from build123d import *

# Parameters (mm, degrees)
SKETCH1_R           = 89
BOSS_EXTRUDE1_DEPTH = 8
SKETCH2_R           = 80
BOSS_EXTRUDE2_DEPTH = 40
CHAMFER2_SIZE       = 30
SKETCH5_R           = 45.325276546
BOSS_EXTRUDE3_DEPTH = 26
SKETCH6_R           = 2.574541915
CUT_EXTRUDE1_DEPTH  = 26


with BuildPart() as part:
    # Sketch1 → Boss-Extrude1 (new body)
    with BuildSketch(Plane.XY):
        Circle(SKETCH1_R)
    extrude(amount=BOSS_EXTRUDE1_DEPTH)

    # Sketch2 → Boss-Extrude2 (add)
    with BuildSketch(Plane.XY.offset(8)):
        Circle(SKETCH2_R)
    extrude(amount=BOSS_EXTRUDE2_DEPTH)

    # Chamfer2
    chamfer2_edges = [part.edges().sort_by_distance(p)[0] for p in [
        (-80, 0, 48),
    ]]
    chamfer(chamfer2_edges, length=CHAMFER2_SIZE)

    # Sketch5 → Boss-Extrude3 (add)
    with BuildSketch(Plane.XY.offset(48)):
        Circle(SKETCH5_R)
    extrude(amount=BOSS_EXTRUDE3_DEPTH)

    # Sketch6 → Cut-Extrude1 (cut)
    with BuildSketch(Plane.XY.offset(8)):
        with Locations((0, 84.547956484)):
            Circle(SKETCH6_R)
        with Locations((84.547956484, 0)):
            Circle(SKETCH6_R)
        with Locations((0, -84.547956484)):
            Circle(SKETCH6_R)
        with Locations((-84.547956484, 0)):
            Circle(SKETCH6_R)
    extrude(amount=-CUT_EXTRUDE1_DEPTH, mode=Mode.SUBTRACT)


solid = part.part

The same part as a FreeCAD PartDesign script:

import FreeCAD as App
import Part
import Sketcher

V = App.Vector


def edges_at(feature, points):
    """Names of the edges that pass closest to the given points."""
    edges = feature.Shape.Edges
    near = lambda p: min(range(len(edges)), key=lambda i: edges[i].distToShape(Part.Vertex(*p))[0])
    return sorted({f"Edge{near(p) + 1}" for p in points})

doc = App.newDocument("Part")
params = doc.addObject("Spreadsheet::Sheet", "Params")
for row, (alias, value) in enumerate([
    ("sketch1_diameter", "178 mm"),
    ("pad1_length", "8 mm"),
    ("sketch2_diameter", "160 mm"),
    ("pad2_length", "40 mm"),
    ("chamfer_size", "30 mm"),
    ("pad3_length", "26 mm"),
    ("pocket1_length", "26 mm"),
], start=1):
    params.set(f"A{row}", alias)
    params.set(f"B{row}", "=" + value)
    params.setAlias(f"B{row}", alias)

body = doc.addObject("PartDesign::Body", "Body")

# Sketch on XY plane
sketch1 = body.newObject("Sketcher::SketchObject", "Sketch")
sketch1.AttachmentSupport = (doc.getObject("XY_Plane"), [""])
sketch1.MapMode = "FlatFace"
sketch1.addGeometry(Part.Circle(V(0, 0, 0), V(0, 0, 1), 89), False)
sketch1.addConstraint(Sketcher.Constraint("Coincident", 0, 3, -1, 1))
sketch1.addConstraint(Sketcher.Constraint("Diameter", 0, 178.0))
sketch1.setExpression("Constraints[1]", "Params.sketch1_diameter")
pad1 = body.newObject("PartDesign::Pad", "Pad")
pad1.Profile = sketch1
pad1.setExpression("Length", "Params.pad1_length")

# Sketch on XY plane
sketch2 = body.newObject("Sketcher::SketchObject", "Sketch001")
sketch2.AttachmentSupport = (doc.getObject("XY_Plane"), [""])
sketch2.MapMode = "FlatFace"
sketch2.AttachmentOffset = App.Placement(V(0, 0, 8), App.Rotation())
sketch2.addGeometry(Part.Circle(V(0, 0, 0), V(0, 0, 1), 80), False)
sketch2.addConstraint(Sketcher.Constraint("Coincident", 0, 3, -1, 1))
sketch2.addConstraint(Sketcher.Constraint("Diameter", 0, 160.0))
sketch2.setExpression("Constraints[1]", "Params.sketch2_diameter")
pad2 = body.newObject("PartDesign::Pad", "Pad001")
pad2.Profile = sketch2
pad2.setExpression("Length", "Params.pad2_length")
doc.recompute()

chamfer = body.newObject("PartDesign::Chamfer", "Chamfer")
chamfer.Base = (pad2, edges_at(pad2, [(-80, 0, 48)]))
chamfer.setExpression("Size", "Params.chamfer_size")

# Sketch on XY plane
sketch3 = body.newObject("Sketcher::SketchObject", "Sketch002")
sketch3.AttachmentSupport = (doc.getObject("XY_Plane"), [""])
sketch3.MapMode = "FlatFace"
sketch3.AttachmentOffset = App.Placement(V(0, 0, 48), App.Rotation())
sketch3.addGeometry(Part.Circle(V(0, 0, 0), V(0, 0, 1), 45), False)
sketch3.addConstraint(Sketcher.Constraint("Coincident", 0, 3, -1, 1))
sketch3.addConstraint(Sketcher.Constraint("Diameter", 0, 90.650553))
pad3 = body.newObject("PartDesign::Pad", "Pad002")
pad3.Profile = sketch3
pad3.setExpression("Length", "Params.pad3_length")

# Sketch on XY plane
sketch4 = body.newObject("Sketcher::SketchObject", "Sketch003")
sketch4.AttachmentSupport = (doc.getObject("XY_Plane"), [""])
sketch4.MapMode = "FlatFace"
sketch4.AttachmentOffset = App.Placement(V(0, 0, 8), App.Rotation())
sketch4.addGeometry(Part.Circle(V(0, 84.5, 0), V(0, 0, 1), 2.6), False)
sketch4.addGeometry(Part.Circle(V(84.5, 0, 0), V(0, 0, 1), 2.6), False)
sketch4.addGeometry(Part.Circle(V(0, -84.5, 0), V(0, 0, 1), 2.6), False)
sketch4.addGeometry(Part.Circle(V(-84.5, 0, 0), V(0, 0, 1), 2.6), False)
sketch4.addConstraint(Sketcher.Constraint("Equal", 0, 1))
sketch4.addConstraint(Sketcher.Constraint("Equal", 1, 2))
sketch4.addConstraint(Sketcher.Constraint("Equal", 2, 3))
sketch4.addConstraint(Sketcher.Constraint("Symmetric", 0, 3, 2, 3, -1, 1))
sketch4.addConstraint(Sketcher.Constraint("Symmetric", 1, 3, 3, 3, -1, 1))
sketch4.addConstraint(Sketcher.Constraint("PointOnObject", 0, 3, -2))
sketch4.addConstraint(Sketcher.Constraint("PointOnObject", 1, 3, -1))
sketch4.addConstraint(Sketcher.Constraint("Diameter", 0, 5.149084))
sketch4.addConstraint(Sketcher.Constraint("DistanceY", -1, 1, 0, 3, 84.547956))
sketch4.addConstraint(Sketcher.Constraint("DistanceX", -1, 1, 1, 3, 84.547956))
pocket1 = body.newObject("PartDesign::Pocket", "Pocket")
pocket1.Profile = sketch4
pocket1.setExpression("Length", "Params.pocket1_length")

doc.recompute()
